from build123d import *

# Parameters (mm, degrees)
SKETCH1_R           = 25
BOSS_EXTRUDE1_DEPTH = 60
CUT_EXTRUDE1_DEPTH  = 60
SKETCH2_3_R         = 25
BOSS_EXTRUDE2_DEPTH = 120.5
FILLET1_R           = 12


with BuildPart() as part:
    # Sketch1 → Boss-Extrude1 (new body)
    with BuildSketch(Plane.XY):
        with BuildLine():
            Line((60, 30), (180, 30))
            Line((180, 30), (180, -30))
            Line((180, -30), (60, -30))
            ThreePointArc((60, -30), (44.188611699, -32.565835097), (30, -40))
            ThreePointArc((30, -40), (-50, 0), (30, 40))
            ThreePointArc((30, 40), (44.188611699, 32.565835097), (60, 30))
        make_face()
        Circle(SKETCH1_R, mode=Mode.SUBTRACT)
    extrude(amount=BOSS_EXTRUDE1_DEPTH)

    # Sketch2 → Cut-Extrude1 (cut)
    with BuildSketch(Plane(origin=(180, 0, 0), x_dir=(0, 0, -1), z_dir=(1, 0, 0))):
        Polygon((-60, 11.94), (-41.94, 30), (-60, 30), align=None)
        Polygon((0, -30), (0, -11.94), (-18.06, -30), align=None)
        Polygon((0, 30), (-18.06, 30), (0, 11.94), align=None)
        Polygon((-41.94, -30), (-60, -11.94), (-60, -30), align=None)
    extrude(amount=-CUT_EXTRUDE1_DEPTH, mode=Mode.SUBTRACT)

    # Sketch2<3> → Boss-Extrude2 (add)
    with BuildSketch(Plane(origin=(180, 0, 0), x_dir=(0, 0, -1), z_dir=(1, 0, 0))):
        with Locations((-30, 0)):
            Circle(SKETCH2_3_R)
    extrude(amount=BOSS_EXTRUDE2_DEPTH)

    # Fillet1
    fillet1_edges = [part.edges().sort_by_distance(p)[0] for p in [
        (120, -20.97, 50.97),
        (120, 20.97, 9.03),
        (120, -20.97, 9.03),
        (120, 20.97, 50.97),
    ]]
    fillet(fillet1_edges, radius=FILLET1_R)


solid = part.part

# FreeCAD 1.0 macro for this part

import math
import FreeCAD as App
import Part
import Sketcher

V = App.Vector


def edges_at(feature, points):
    """Names of the edges that pass closest to the given points."""
    edges = feature.Shape.Edges
    near = lambda p: min(range(len(edges)), key=lambda i: edges[i].distToShape(Part.Vertex(*p))[0])
    return sorted({f"Edge{near(p) + 1}" for p in points})

doc = App.newDocument("Part")
body = doc.addObject("PartDesign::Body", "Body")

# Sketch on XY plane
sketch1 = body.newObject("Sketcher::SketchObject", "Sketch")
sketch1.AttachmentSupport = (doc.getObject("XY_Plane"), [""])
sketch1.MapMode = "FlatFace"
sketch1.addGeometry([
    Part.LineSegment(V(180, 30, 0), V(60, 30, 0)),  # 0
    Part.ArcOfCircle(Part.Circle(V(60, 80, 0), V(0, 0, 1), 50), math.radians(-127), math.radians(-90)),  # 1
    Part.ArcOfCircle(Part.Circle(V(0, 0, 0), V(0, 0, 1), 50), math.radians(53), math.radians(307)),  # 2
    Part.ArcOfCircle(Part.Circle(V(60, -80, 0), V(0, 0, 1), 50), math.radians(90), math.radians(127)),  # 3
    Part.LineSegment(V(60, -30, 0), V(180, -30, 0)),  # 4
    Part.LineSegment(V(180, -30, 0), V(180, 30, 0)),  # 5
    Part.Circle(V(0, 0, 0), V(0, 0, 1), 25),  # 6
], False)
sketch1.addConstraint([
    Sketcher.Constraint("Tangent", 0, 2, 1, 2),
    Sketcher.Constraint("Tangent", 1, 1, 2, 1),
    Sketcher.Constraint("Tangent", 2, 2, 3, 2),
    Sketcher.Constraint("Tangent", 3, 1, 4, 1),
    Sketcher.Constraint("Coincident", 4, 2, 5, 1),
    Sketcher.Constraint("Coincident", 5, 2, 0, 1),
    Sketcher.Constraint("Horizontal", 0),
    Sketcher.Constraint("Horizontal", 4),
    Sketcher.Constraint("Vertical", 5),
    Sketcher.Constraint("Coincident", 2, 3, -1, 1),
    Sketcher.Constraint("Coincident", 6, 3, -1, 1),
    Sketcher.Constraint("Equal", 1, 2),
    Sketcher.Constraint("Equal", 2, 3),
    Sketcher.Constraint("Vertical", 1, 3, 3, 3),
    Sketcher.Constraint("Diameter", 6, 50.0),
    Sketcher.Constraint("Radius", 1, 50.0),
    Sketcher.Constraint("DistanceX", 0, 2, 0, 1, 120.0),
    Sketcher.Constraint("DistanceY", 5, 1, 5, 2, 60.0),
])
pad1 = body.newObject("PartDesign::Pad", "Pad")
pad1.Profile = sketch1
pad1.Length = 60

# Sketch on YZ plane
sketch2 = body.newObject("Sketcher::SketchObject", "Sketch001")
sketch2.AttachmentSupport = (doc.getObject("YZ_Plane"), [""])
sketch2.MapMode = "FlatFace"
sketch2.AttachmentOffset = App.Placement(V(0, 0, 180), App.Rotation())
sketch2.addGeometry([
    Part.LineSegment(V(12, 60, 0), V(30, 42, 0)),  # 0
    Part.LineSegment(V(30, 42, 0), V(30, 60, 0)),  # 1
    Part.LineSegment(V(30, 60, 0), V(12, 60, 0)),  # 2
    Part.LineSegment(V(-30, 0, 0), V(-12, 0, 0)),  # 3
    Part.LineSegment(V(-12, 0, 0), V(-30, 18, 0)),  # 4
    Part.LineSegment(V(-30, 18, 0), V(-30, 0, 0)),  # 5
    Part.LineSegment(V(30, 0, 0), V(30, 18, 0)),  # 6
    Part.LineSegment(V(30, 18, 0), V(12, 0, 0)),  # 7
    Part.LineSegment(V(12, 0, 0), V(30, 0, 0)),  # 8
    Part.LineSegment(V(-30, 42, 0), V(-12, 60, 0)),  # 9
    Part.LineSegment(V(-12, 60, 0), V(-30, 60, 0)),  # 10
    Part.LineSegment(V(-30, 60, 0), V(-30, 42, 0)),  # 11
], False)
sketch2.addConstraint([
    Sketcher.Constraint("Coincident", 0, 2, 1, 1),
    Sketcher.Constraint("Coincident", 1, 2, 2, 1),
    Sketcher.Constraint("Coincident", 2, 2, 0, 1),
    Sketcher.Constraint("Coincident", 3, 2, 4, 1),
    Sketcher.Constraint("Coincident", 4, 2, 5, 1),
    Sketcher.Constraint("Coincident", 5, 2, 3, 1),
    Sketcher.Constraint("Coincident", 6, 2, 7, 1),
    Sketcher.Constraint("Coincident", 7, 2, 8, 1),
    Sketcher.Constraint("Coincident", 8, 2, 6, 1),
    Sketcher.Constraint("Coincident", 9, 2, 10, 1),
    Sketcher.Constraint("Coincident", 10, 2, 11, 1),
    Sketcher.Constraint("Coincident", 11, 2, 9, 1),
    Sketcher.Constraint("Vertical", 1),
    Sketcher.Constraint("Horizontal", 2),
    Sketcher.Constraint("Horizontal", 3),
    Sketcher.Constraint("Vertical", 5),
    Sketcher.Constraint("Vertical", 6),
    Sketcher.Constraint("Horizontal", 8),
    Sketcher.Constraint("Horizontal", 10),
    Sketcher.Constraint("Vertical", 11),
    Sketcher.Constraint("Symmetric", 3, 2, 7, 2, -1, 1),
    Sketcher.Constraint("Symmetric", 4, 2, 6, 2, -2),
    Sketcher.Constraint("Symmetric", 2, 2, 9, 2, -2),
    Sketcher.Constraint("Symmetric", 0, 2, 11, 2, -2),
    Sketcher.Constraint("PointOnObject", 3, 2, -1),
    Sketcher.Constraint("Parallel", 0, 4),
    Sketcher.Constraint("Perpendicular", 4, 7),
    Sketcher.Constraint("Vertical", 1, 2, 6, 2),
    Sketcher.Constraint("Vertical", 2, 2, 7, 2),
    Sketcher.Constraint("DistanceX", -1, 1, 0, 2, 30.0),
    Sketcher.Constraint("DistanceY", -1, 1, 1, 2, 60.0),
    Sketcher.Constraint("DistanceX", 2, 2, 2, 1, 18.06),
])
pocket1 = body.newObject("PartDesign::Pocket", "Pocket")
pocket1.Profile = sketch2
pocket1.Length = 60

# Sketch on YZ plane
sketch3 = body.newObject("Sketcher::SketchObject", "Sketch002")
sketch3.AttachmentSupport = (doc.getObject("YZ_Plane"), [""])
sketch3.MapMode = "FlatFace"
sketch3.AttachmentOffset = App.Placement(V(0, 0, 180), App.Rotation())
sketch3.addGeometry(Part.Circle(V(0, 30, 0), V(0, 0, 1), 25), False)
sketch3.addConstraint([
    Sketcher.Constraint("PointOnObject", 0, 3, -2),
    Sketcher.Constraint("Diameter", 0, 50.0),
    Sketcher.Constraint("DistanceY", -1, 1, 0, 3, 30.0),
])
pad2 = body.newObject("PartDesign::Pad", "Pad001")
pad2.Profile = sketch3
pad2.Length = 120.5
doc.recompute()

fillet = body.newObject("PartDesign::Fillet", "Fillet")
fillet.Base = (pad2, edges_at(pad2, [
    (120, -20.97, 50.97),
    (120, 20.97, 9.03),
    (120, -20.97, 9.03),
    (120, 20.97, 50.97),
]))
fillet.Radius = 12

doc.recompute()
